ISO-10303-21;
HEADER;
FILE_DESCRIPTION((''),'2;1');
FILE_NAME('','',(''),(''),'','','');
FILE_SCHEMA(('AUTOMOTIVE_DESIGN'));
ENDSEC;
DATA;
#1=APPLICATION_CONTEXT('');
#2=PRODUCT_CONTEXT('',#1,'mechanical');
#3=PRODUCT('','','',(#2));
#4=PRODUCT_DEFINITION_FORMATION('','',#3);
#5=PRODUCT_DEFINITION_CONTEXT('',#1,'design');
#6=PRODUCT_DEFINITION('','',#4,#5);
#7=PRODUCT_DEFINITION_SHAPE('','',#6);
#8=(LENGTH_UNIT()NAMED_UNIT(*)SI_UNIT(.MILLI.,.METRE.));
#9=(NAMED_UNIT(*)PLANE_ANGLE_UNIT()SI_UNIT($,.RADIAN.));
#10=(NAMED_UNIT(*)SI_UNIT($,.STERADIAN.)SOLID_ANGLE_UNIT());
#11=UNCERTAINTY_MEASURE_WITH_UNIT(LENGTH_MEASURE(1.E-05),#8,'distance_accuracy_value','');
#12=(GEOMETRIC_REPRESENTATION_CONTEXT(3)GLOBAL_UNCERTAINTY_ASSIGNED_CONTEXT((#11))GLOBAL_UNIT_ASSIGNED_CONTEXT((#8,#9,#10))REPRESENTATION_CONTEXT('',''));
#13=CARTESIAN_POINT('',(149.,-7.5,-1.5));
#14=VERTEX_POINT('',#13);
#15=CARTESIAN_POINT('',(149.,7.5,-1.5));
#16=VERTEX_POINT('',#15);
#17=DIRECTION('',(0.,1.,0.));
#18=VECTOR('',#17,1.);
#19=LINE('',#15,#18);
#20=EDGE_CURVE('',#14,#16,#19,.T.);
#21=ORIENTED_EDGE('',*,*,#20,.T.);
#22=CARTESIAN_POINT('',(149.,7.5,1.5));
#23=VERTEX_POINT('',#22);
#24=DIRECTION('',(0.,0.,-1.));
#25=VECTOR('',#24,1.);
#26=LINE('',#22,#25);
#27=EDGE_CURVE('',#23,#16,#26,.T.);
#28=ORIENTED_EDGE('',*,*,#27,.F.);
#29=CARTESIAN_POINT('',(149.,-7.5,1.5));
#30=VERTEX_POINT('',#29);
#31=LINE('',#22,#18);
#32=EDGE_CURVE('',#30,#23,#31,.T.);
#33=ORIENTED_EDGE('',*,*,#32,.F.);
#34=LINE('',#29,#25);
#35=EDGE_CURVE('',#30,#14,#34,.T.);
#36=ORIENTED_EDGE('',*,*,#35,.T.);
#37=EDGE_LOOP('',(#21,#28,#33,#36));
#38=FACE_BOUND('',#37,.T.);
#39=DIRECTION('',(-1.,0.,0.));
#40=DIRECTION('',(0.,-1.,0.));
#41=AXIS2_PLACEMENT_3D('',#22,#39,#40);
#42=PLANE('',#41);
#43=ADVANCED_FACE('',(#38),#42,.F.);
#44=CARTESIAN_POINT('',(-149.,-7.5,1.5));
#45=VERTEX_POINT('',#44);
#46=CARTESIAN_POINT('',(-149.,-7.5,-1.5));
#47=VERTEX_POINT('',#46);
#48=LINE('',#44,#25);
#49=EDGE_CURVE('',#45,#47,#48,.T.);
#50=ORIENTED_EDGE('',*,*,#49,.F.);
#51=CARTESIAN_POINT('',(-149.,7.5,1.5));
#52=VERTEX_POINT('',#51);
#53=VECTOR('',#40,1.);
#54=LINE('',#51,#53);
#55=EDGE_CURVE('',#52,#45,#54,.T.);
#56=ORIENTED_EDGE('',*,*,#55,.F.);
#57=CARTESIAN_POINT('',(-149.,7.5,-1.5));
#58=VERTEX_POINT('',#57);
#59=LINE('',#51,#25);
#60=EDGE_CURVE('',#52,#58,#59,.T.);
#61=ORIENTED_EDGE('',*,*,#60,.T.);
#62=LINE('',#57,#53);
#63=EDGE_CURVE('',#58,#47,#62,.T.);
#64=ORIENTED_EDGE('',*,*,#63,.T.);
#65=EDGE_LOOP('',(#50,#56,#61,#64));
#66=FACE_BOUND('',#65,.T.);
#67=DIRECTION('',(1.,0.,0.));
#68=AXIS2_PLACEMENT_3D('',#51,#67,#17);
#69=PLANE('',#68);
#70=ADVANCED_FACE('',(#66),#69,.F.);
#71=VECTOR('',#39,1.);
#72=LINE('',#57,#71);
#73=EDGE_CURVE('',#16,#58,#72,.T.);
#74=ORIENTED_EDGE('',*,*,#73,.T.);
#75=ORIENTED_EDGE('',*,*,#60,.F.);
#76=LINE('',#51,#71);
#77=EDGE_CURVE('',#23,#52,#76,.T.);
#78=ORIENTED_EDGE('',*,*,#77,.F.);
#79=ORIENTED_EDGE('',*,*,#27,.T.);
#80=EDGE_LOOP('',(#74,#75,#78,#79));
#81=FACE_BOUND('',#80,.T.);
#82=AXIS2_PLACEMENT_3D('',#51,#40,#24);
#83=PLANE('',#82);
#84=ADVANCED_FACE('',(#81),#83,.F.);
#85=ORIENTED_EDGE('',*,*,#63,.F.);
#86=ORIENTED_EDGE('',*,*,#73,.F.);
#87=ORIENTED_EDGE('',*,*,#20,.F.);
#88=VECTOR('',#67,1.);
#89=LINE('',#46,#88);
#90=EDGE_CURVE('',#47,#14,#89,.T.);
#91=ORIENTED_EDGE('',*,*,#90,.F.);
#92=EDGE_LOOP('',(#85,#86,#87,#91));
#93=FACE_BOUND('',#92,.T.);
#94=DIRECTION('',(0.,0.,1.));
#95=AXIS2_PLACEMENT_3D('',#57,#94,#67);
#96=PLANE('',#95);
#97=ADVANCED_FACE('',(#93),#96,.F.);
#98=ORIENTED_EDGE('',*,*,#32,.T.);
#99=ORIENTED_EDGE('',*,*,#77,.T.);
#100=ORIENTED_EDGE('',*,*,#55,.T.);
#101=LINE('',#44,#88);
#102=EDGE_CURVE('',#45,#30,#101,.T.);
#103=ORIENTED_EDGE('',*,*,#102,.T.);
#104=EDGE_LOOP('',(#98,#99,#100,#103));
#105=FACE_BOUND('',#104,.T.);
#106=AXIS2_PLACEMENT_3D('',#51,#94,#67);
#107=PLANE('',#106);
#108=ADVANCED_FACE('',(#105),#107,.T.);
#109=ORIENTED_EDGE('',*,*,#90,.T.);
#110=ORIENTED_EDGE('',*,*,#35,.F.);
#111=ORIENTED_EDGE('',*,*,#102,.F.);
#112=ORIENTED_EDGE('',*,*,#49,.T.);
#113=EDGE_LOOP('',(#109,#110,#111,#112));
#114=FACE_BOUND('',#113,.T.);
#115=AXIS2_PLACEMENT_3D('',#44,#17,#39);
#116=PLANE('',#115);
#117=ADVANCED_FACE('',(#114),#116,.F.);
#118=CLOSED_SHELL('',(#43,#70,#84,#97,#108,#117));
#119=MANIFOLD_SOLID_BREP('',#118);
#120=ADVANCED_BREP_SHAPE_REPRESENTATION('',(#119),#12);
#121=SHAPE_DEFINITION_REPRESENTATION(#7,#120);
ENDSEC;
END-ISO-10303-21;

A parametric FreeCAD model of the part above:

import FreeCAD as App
import Part
import Sketcher
Q = App.Units.Quantity


def add_polygon(sketch, points):
    """Adds a closed chain of lines whose ends are joined by coincident constraints."""
    first, n = sketch.GeometryCount, len(points)
    for a, b in zip(points, points[1:] + points[:1]):
        sketch.addGeometry(Part.LineSegment(App.Vector(*a, 0), App.Vector(*b, 0)), False)
    for i in range(n):
        sketch.addConstraint(Sketcher.Constraint("Coincident", first + i, 2, first + (i + 1) % n, 1))

doc = App.newDocument("Part")
body = doc.addObject("PartDesign::Body", "Body")

# Sketch on XY plane
sketch1 = body.newObject("Sketcher::SketchObject", "Sketch")
sketch1.AttachmentSupport = (doc.getObject("XY_Plane"), [""])
sketch1.MapMode = "FlatFace"
add_polygon(sketch1, [(-149, 8), (-149, -8), (149, -8), (149, 8)])  # lines 0-3
sketch1.addConstraint([
    Sketcher.Constraint("Vertical", 0),
    Sketcher.Constraint("Horizontal", 1),
    Sketcher.Constraint("Vertical", 2),
    Sketcher.Constraint("Horizontal", 3),
    Sketcher.Constraint("Symmetric", 0, 2, 2, 2, -1, 1),
    Sketcher.Constraint("DistanceX", 1, 1, 1, 2, Q("298 mm")),
    Sketcher.Constraint("DistanceY", 0, 2, 0, 1, Q("15 mm")),
])
pad1 = body.newObject("PartDesign::Pad", "Pad")
pad1.Profile = sketch1
pad1.Length = 3
pad1.Midplane = True

doc.recompute()
